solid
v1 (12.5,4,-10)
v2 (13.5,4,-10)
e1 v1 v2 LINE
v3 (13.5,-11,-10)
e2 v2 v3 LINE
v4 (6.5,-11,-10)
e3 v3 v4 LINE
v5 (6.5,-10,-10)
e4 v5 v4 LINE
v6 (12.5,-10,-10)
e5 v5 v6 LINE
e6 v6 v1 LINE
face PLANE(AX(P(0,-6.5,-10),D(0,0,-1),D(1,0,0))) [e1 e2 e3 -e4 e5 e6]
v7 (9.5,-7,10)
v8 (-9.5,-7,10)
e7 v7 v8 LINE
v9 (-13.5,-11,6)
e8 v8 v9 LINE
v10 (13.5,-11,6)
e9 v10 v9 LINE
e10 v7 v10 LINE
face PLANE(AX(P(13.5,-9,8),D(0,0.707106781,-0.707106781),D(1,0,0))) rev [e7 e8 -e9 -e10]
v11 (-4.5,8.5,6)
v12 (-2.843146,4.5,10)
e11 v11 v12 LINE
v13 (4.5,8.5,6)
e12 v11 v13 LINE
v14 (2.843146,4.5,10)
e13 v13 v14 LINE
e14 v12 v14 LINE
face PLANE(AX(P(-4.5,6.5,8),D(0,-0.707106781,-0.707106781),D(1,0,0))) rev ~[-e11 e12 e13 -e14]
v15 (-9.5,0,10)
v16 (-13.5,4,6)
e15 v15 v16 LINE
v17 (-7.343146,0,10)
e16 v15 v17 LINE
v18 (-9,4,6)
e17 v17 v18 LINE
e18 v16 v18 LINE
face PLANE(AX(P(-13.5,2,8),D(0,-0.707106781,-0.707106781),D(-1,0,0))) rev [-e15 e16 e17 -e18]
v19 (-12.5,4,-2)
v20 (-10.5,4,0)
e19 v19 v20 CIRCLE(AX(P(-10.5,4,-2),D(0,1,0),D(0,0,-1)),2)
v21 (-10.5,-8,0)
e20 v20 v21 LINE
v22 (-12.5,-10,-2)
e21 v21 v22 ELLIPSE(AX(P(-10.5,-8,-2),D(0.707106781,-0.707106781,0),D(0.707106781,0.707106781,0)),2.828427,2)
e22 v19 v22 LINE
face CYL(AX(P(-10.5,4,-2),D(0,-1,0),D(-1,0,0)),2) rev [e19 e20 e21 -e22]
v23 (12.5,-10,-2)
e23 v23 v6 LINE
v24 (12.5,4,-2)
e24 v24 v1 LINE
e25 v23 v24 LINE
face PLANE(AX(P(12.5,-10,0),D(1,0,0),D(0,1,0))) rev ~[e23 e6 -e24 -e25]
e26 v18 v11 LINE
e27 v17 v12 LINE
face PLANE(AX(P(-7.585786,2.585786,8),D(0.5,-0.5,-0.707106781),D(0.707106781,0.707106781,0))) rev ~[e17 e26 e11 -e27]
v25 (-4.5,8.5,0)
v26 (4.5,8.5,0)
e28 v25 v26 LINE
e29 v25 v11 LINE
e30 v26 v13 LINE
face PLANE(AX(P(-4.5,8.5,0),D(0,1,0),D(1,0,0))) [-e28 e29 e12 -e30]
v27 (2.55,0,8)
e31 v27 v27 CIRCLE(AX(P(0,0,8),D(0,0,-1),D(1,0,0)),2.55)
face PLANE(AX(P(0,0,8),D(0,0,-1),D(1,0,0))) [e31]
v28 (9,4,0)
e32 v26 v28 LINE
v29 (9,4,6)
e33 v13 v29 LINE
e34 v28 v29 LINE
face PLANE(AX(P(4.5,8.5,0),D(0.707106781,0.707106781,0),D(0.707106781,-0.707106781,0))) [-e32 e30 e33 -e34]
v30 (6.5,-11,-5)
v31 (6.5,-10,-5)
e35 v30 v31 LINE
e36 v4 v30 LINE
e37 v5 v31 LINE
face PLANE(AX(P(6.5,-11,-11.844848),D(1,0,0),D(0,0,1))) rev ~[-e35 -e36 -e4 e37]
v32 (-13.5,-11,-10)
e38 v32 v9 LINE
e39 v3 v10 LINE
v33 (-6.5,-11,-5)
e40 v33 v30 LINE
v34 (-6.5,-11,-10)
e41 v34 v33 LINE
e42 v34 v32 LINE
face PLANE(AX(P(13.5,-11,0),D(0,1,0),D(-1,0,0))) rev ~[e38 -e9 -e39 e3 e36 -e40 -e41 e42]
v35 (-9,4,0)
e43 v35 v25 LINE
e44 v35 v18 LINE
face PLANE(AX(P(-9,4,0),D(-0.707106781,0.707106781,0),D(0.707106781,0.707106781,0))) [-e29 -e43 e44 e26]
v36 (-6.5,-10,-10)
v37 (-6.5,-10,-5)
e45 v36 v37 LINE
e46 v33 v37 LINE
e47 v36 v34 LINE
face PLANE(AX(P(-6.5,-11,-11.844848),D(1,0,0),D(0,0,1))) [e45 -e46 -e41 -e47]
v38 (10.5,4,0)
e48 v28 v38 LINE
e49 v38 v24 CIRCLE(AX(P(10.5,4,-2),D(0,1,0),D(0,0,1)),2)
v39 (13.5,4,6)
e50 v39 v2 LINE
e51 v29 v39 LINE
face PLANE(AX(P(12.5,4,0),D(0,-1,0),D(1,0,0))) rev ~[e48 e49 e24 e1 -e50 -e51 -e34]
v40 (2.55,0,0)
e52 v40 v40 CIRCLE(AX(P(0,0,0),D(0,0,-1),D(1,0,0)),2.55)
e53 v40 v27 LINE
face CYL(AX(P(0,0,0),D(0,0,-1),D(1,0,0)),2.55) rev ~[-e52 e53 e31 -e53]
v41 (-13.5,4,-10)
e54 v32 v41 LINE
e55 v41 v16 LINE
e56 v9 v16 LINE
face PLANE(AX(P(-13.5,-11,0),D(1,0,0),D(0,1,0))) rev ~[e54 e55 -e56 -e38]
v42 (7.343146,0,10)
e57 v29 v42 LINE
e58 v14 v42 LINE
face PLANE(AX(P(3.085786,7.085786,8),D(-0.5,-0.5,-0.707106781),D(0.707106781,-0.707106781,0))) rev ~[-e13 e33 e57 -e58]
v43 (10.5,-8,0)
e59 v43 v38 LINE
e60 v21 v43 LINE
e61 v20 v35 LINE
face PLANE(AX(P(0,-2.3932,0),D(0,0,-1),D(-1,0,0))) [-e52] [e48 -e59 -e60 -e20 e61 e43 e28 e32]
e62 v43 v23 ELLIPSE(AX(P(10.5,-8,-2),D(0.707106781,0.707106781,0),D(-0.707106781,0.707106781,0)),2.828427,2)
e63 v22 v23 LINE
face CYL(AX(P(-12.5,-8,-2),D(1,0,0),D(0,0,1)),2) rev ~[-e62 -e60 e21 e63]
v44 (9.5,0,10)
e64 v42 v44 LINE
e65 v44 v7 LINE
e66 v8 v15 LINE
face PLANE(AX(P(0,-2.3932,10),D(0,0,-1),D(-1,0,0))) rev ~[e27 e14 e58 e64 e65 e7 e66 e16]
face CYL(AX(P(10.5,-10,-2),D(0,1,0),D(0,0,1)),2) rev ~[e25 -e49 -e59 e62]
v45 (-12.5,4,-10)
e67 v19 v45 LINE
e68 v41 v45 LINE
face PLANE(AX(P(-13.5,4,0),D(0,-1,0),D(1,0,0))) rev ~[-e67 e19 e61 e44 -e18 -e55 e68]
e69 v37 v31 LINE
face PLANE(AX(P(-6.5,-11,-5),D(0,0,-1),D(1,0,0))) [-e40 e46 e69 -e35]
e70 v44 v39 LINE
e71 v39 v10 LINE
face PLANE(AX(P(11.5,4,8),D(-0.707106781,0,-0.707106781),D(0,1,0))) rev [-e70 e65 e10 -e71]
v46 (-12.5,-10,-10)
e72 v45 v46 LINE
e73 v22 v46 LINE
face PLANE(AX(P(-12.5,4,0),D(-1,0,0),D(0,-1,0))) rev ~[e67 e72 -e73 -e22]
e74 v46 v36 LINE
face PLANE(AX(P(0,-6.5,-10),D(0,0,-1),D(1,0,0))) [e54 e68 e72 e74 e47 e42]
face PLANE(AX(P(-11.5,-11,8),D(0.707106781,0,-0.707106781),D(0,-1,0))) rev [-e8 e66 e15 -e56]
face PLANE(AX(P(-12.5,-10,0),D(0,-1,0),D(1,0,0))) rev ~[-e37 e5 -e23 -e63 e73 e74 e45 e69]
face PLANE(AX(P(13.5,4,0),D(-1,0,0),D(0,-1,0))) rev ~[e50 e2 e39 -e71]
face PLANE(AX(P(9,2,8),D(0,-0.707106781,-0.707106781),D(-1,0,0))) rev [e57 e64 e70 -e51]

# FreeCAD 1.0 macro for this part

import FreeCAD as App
import Part
import Sketcher

V = App.Vector
Q = App.Units.Quantity


def edges_at(feature, points):
    """Names of the edges that pass closest to the given points."""
    edges = feature.Shape.Edges
    near = lambda p: min(range(len(edges)), key=lambda i: edges[i].distToShape(Part.Vertex(*p))[0])
    return sorted({f"Edge{near(p) + 1}" for p in points})

doc = App.newDocument("Part")
params = doc.addObject("Spreadsheet::Sheet", "Params")
for row, (alias, value) in enumerate([
    ("sketch1_width", "9 mm"),
    ("sketch1_width2", "27 mm"),
    ("sketch1_height", "15 mm"),
    ("sketch1_width3", "4.5 mm"),
    ("pad1_length", "10 mm"),
    ("sketch2_diameter", "5.1 mm"),
    ("pocket1_length", "8 mm"),
    ("chamfer_size", "4 mm"),
    ("sketch3_width", "1 mm"),
    ("sketch3_width2", "25 mm"),
    ("sketch3_height", "14 mm"),
    ("sketch3_height2", "15 mm"),
    ("pad2_length", "10 mm"),
    ("sketch4_width", "13 mm"),
    ("fillet_radius", "2 mm"),
], start=1):
    params.set(f"A{row}", alias)
    params.set(f"B{row}", "=" + value)
    params.setAlias(f"B{row}", alias)

body = doc.addObject("PartDesign::Body", "Body")

sketch1 = body.newObject("Sketcher::SketchObject", "Sketch")
sketch1.AttachmentSupport = (doc.getObject("XY_Plane"), [""])
sketch1.MapMode = "FlatFace"
sketch1.addGeometry(Part.LineSegment(V(4.5, 8.5, 0), V(-4.5, 8.5, 0)), False)
sketch1.addGeometry(Part.LineSegment(V(-4.5, 8.5, 0), V(-9, 4, 0)), False)
sketch1.addGeometry(Part.LineSegment(V(-9, 4, 0), V(-13.5, 4, 0)), False)
sketch1.addGeometry(Part.LineSegment(V(-13.5, 4, 0), V(-13.5, -11, 0)), False)
sketch1.addGeometry(Part.LineSegment(V(-13.5, -11, 0), V(13.5, -11, 0)), False)
sketch1.addGeometry(Part.LineSegment(V(13.5, -11, 0), V(13.5, 4, 0)), False)
sketch1.addGeometry(Part.LineSegment(V(13.5, 4, 0), V(9, 4, 0)), False)
sketch1.addGeometry(Part.LineSegment(V(9, 4, 0), V(4.5, 8.5, 0)), False)
sketch1.addConstraint(Sketcher.Constraint("Coincident", 0, 2, 1, 1))
sketch1.addConstraint(Sketcher.Constraint("Coincident", 1, 2, 2, 1))
sketch1.addConstraint(Sketcher.Constraint("Coincident", 2, 2, 3, 1))
sketch1.addConstraint(Sketcher.Constraint("Coincident", 3, 2, 4, 1))
sketch1.addConstraint(Sketcher.Constraint("Coincident", 4, 2, 5, 1))
sketch1.addConstraint(Sketcher.Constraint("Coincident", 5, 2, 6, 1))
sketch1.addConstraint(Sketcher.Constraint("Coincident", 6, 2, 7, 1))
sketch1.addConstraint(Sketcher.Constraint("Coincident", 7, 2, 0, 1))
sketch1.addConstraint(Sketcher.Constraint("Horizontal", 0))
sketch1.addConstraint(Sketcher.Constraint("Horizontal", 2))
sketch1.addConstraint(Sketcher.Constraint("Vertical", 3))
sketch1.addConstraint(Sketcher.Constraint("Horizontal", 4))
sketch1.addConstraint(Sketcher.Constraint("Vertical", 5))
sketch1.addConstraint(Sketcher.Constraint("Horizontal", 6))
sketch1.addConstraint(Sketcher.Constraint("Symmetric", 2, 2, 5, 2, -2))
sketch1.addConstraint(Sketcher.Constraint("Perpendicular", 1, 7))
sketch1.addConstraint(Sketcher.Constraint("Equal", 2, 6))
sketch1.addConstraint(Sketcher.Constraint("Equal", 1, 7))
sketch1.addConstraint(Sketcher.Constraint("DistanceX", 0, 2, 0, 1, Q("9 mm")))
sketch1.addConstraint(Sketcher.Constraint("DistanceX", 4, 1, 4, 2, Q("27 mm")))
sketch1.addConstraint(Sketcher.Constraint("DistanceY", 3, 2, 3, 1, Q("15 mm")))
sketch1.addConstraint(Sketcher.Constraint("DistanceX", 2, 2, 2, 1, Q("4.5 mm")))
sketch1.addConstraint(Sketcher.Constraint("DistanceY", -1, 1, 1, 2, Q("4 mm")))
sketch1.setExpression("Constraints[18]", "Params.sketch1_width")
sketch1.setExpression("Constraints[19]", "Params.sketch1_width2")
sketch1.setExpression("Constraints[20]", "Params.sketch1_height")
sketch1.setExpression("Constraints[21]", "Params.sketch1_width3")
pad1 = body.newObject("PartDesign::Pad", "Pad")
pad1.Profile = sketch1
pad1.setExpression("Length", "Params.pad1_length")

sketch2 = body.newObject("Sketcher::SketchObject", "Sketch001")
sketch2.AttachmentSupport = (doc.getObject("XY_Plane"), [""])
sketch2.MapMode = "FlatFace"
sketch2.addGeometry(Part.Circle(V(0, 0, 0), V(0, 0, 1), 2.5), False)
sketch2.addConstraint(Sketcher.Constraint("Coincident", 0, 3, -1, 1))
sketch2.addConstraint(Sketcher.Constraint("Diameter", 0, Q("5.1 mm")))
sketch2.setExpression("Constraints[1]", "Params.sketch2_diameter")
pocket1 = body.newObject("PartDesign::Pocket", "Pocket")
pocket1.Profile = sketch2
pocket1.setExpression("Length", "Params.pocket1_length")
pocket1.Reversed = True
doc.recompute()

chamfer = body.newObject("PartDesign::Chamfer", "Chamfer")
chamfer.Base = (pocket1, edges_at(pocket1, [
    (0, 8.5, 10),
    (6.75, 6.25, 10),
    (11.25, 4, 10),
    (13.5, -3.5, 10),
    (0, -11, 10),
    (-13.5, -3.5, 10),
    (-11.25, 4, 10),
    (-6.75, 6.25, 10),
]))
chamfer.setExpression("Size", "Params.chamfer_size")

sketch3 = body.newObject("Sketcher::SketchObject", "Sketch002")
sketch3.AttachmentSupport = (doc.getObject("XY_Plane"), [""])
sketch3.MapMode = "FlatFace"
sketch3.addGeometry(Part.LineSegment(V(-13.5, 4, 0), V(-12.5, 4, 0)), False)
sketch3.addGeometry(Part.LineSegment(V(-12.5, 4, 0), V(-12.5, -10, 0)), False)
sketch3.addGeometry(Part.LineSegment(V(-12.5, -10, 0), V(12.5, -10, 0)), False)
sketch3.addGeometry(Part.LineSegment(V(12.5, -10, 0), V(12.5, 4, 0)), False)
sketch3.addGeometry(Part.LineSegment(V(12.5, 4, 0), V(13.5, 4, 0)), False)
sketch3.addGeometry(Part.LineSegment(V(13.5, 4, 0), V(13.5, -11, 0)), False)
sketch3.addGeometry(Part.LineSegment(V(13.5, -11, 0), V(-13.5, -11, 0)), False)
sketch3.addGeometry(Part.LineSegment(V(-13.5, -11, 0), V(-13.5, 4, 0)), False)
sketch3.addConstraint(Sketcher.Constraint("Coincident", 0, 2, 1, 1))
sketch3.addConstraint(Sketcher.Constraint("Coincident", 1, 2, 2, 1))
sketch3.addConstraint(Sketcher.Constraint("Coincident", 2, 2, 3, 1))
sketch3.addConstraint(Sketcher.Constraint("Coincident", 3, 2, 4, 1))
sketch3.addConstraint(Sketcher.Constraint("Coincident", 4, 2, 5, 1))
sketch3.addConstraint(Sketcher.Constraint("Coincident", 5, 2, 6, 1))
sketch3.addConstraint(Sketcher.Constraint("Coincident", 6, 2, 7, 1))
sketch3.addConstraint(Sketcher.Constraint("Coincident", 7, 2, 0, 1))
sketch3.addConstraint(Sketcher.Constraint("Horizontal", 0))
sketch3.addConstraint(Sketcher.Constraint("Vertical", 1))
sketch3.addConstraint(Sketcher.Constraint("Horizontal", 2))
sketch3.addConstraint(Sketcher.Constraint("Vertical", 3))
sketch3.addConstraint(Sketcher.Constraint("Horizontal", 4))
sketch3.addConstraint(Sketcher.Constraint("Vertical", 5))
sketch3.addConstraint(Sketcher.Constraint("Horizontal", 6))
sketch3.addConstraint(Sketcher.Constraint("Vertical", 7))
sketch3.addConstraint(Sketcher.Constraint("Symmetric", 0, 2, 3, 2, -2))
sketch3.addConstraint(Sketcher.Constraint("Equal", 0, 4))
sketch3.addConstraint(Sketcher.Constraint("DistanceX", 0, 1, 0, 2, Q("1 mm")))
sketch3.addConstraint(Sketcher.Constraint("DistanceX", 2, 1, 2, 2, Q("25 mm")))
sketch3.addConstraint(Sketcher.Constraint("DistanceY", 1, 2, 1, 1, Q("14 mm")))
sketch3.addConstraint(Sketcher.Constraint("DistanceY", 5, 2, 5, 1, Q("15 mm")))
sketch3.addConstraint(Sketcher.Constraint("DistanceY", -1, 1, 0, 2, Q("4 mm")))
sketch3.setExpression("Constraints[18]", "Params.sketch3_width")
sketch3.setExpression("Constraints[19]", "Params.sketch3_width2")
sketch3.setExpression("Constraints[20]", "Params.sketch3_height")
sketch3.setExpression("Constraints[21]", "Params.sketch3_height2")
pad2 = body.newObject("PartDesign::Pad", "Pad001")
pad2.Profile = sketch3
pad2.setExpression("Length", "Params.pad2_length")
pad2.Reversed = True

sketch4 = body.newObject("Sketcher::SketchObject", "Sketch003")
sketch4.AttachmentSupport = (doc.getObject("XZ_Plane"), [""])
sketch4.MapMode = "FlatFace"
sketch4.AttachmentOffset = App.Placement(V(0, 0, 11), App.Rotation())
sketch4.addGeometry(Part.LineSegment(V(-6, -5, 0), V(-6, -12, 0)), False)
sketch4.addGeometry(Part.LineSegment(V(-6, -12, 0), V(6, -12, 0)), False)
sketch4.addGeometry(Part.LineSegment(V(6, -12, 0), V(6, -5, 0)), False)
sketch4.addGeometry(Part.LineSegment(V(6, -5, 0), V(-6, -5, 0)), False)
sketch4.addConstraint(Sketcher.Constraint("Coincident", 0, 2, 1, 1))
sketch4.addConstraint(Sketcher.Constraint("Coincident", 1, 2, 2, 1))
sketch4.addConstraint(Sketcher.Constraint("Coincident", 2, 2, 3, 1))
sketch4.addConstraint(Sketcher.Constraint("Coincident", 3, 2, 0, 1))
sketch4.addConstraint(Sketcher.Constraint("Vertical", 0))
sketch4.addConstraint(Sketcher.Constraint("Horizontal", 1))
sketch4.addConstraint(Sketcher.Constraint("Vertical", 2))
sketch4.addConstraint(Sketcher.Constraint("Horizontal", 3))
sketch4.addConstraint(Sketcher.Constraint("DistanceX", 1, 1, 1, 2, Q("13 mm")))
sketch4.addConstraint(Sketcher.Constraint("DistanceY", 2, 2, -1, 1, Q("5 mm")))
sketch4.addConstraint(Sketcher.Constraint("DistanceX", 0, 2, -1, 1, Q("6.5 mm")))
sketch4.addConstraint(Sketcher.Constraint("DistanceY", 0, 2, 0, 1, Q("6.844848 mm")))
sketch4.setExpression("Constraints[8]", "Params.sketch4_width")
pocket2 = body.newObject("PartDesign::Pocket", "Pocket001")
pocket2.Profile = sketch4
pocket2.Type = "ThroughAll"
doc.recompute()

fillet = body.newObject("PartDesign::Fillet", "Fillet")
fillet.Base = (pocket2, edges_at(pocket2, [(12.5, -3, 0), (0, -10, 0), (-12.5, -3, 0)]))
fillet.setExpression("Radius", "Params.fillet_radius")

doc.recompute()
